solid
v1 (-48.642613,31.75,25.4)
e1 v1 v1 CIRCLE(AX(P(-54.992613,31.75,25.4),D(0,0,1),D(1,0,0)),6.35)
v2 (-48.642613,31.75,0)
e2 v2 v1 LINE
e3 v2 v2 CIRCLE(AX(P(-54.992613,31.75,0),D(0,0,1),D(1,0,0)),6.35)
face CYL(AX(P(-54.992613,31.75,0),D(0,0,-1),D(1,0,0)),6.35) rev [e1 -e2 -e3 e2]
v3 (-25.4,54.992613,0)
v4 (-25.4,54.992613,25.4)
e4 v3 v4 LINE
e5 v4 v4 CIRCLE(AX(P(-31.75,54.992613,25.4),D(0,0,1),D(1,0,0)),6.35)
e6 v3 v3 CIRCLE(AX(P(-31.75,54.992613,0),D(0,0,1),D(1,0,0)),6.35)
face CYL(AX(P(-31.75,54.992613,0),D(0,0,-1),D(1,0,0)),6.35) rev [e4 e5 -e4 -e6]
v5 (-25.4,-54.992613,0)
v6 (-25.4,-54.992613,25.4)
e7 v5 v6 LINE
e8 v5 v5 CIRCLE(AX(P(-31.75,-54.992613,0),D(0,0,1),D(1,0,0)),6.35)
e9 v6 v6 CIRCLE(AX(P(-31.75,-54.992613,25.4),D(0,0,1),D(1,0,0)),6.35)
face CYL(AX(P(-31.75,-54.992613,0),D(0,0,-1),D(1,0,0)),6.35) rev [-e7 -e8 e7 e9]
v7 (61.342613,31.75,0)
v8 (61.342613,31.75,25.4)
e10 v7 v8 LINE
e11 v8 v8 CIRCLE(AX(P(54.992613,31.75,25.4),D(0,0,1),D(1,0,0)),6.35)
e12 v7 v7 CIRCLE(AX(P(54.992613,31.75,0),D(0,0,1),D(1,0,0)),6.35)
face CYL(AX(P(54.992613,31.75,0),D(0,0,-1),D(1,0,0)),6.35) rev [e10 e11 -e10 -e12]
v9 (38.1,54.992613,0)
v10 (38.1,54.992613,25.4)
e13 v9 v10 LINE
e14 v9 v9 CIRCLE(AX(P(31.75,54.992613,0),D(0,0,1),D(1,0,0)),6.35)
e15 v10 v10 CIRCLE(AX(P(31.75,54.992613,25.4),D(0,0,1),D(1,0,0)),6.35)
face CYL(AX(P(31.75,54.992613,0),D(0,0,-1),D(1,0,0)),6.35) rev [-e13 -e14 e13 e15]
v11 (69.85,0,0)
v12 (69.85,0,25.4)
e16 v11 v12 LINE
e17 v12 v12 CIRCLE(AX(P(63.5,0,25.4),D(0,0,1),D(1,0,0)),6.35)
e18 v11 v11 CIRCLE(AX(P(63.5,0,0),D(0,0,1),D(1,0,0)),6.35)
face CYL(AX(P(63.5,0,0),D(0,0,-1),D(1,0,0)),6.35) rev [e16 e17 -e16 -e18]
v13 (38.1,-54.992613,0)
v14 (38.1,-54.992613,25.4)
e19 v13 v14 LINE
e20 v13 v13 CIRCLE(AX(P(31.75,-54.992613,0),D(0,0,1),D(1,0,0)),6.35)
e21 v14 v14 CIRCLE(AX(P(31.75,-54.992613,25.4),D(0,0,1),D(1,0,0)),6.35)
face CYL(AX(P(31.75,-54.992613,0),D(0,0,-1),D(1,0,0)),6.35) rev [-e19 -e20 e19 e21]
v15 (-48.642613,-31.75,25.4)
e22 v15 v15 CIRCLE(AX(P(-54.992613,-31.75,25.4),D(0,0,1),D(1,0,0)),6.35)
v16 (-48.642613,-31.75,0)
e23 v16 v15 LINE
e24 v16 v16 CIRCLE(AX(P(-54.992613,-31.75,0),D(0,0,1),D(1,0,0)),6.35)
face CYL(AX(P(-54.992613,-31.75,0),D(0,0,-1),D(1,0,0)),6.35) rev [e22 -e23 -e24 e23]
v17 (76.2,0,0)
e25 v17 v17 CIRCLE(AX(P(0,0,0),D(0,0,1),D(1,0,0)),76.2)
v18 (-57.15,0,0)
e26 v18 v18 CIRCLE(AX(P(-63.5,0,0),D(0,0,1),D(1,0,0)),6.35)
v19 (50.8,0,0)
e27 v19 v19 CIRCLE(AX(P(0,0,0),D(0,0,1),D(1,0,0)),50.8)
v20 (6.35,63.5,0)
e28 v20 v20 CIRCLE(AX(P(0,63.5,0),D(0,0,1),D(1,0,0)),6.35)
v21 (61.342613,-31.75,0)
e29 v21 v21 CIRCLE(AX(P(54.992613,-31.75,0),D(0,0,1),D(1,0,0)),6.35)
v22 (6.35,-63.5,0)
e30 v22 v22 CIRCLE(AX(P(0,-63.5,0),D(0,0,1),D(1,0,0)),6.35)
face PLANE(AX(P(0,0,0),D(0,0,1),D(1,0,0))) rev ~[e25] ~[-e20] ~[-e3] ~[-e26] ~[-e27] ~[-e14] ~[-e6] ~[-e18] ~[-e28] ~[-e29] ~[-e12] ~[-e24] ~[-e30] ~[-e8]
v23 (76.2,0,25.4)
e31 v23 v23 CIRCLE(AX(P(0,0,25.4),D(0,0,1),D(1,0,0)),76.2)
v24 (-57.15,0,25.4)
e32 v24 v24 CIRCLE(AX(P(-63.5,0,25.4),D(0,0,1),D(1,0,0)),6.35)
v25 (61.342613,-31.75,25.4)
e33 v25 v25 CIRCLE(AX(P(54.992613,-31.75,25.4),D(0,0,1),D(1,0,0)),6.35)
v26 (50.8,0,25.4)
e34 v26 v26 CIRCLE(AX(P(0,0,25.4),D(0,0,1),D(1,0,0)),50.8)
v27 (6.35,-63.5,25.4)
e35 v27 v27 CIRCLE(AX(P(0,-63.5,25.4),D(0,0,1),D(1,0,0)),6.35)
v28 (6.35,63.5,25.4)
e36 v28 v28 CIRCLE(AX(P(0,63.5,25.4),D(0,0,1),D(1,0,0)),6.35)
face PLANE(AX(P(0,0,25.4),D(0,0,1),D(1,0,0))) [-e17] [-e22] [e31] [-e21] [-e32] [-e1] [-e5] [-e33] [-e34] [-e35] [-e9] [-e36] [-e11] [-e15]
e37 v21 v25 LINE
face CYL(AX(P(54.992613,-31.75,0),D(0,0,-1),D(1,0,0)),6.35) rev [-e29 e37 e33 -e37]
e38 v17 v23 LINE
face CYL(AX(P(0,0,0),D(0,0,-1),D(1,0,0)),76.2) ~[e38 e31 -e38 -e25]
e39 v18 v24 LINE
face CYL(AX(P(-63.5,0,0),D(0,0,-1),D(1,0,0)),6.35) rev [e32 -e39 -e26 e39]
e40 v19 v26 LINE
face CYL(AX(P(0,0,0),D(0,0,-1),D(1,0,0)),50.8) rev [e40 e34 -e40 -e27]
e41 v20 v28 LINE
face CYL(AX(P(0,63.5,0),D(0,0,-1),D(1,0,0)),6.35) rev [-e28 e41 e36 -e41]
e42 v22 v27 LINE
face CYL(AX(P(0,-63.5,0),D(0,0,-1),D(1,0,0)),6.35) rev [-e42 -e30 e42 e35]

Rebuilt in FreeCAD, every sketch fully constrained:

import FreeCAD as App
import Part
import Sketcher
from FreeCAD import Vector
Q = App.Units.Quantity

doc = App.newDocument("Part")
body = doc.addObject("PartDesign::Body", "Body")

# Sketch on XY plane
sketch1 = body.newObject("Sketcher::SketchObject", "Sketch")
sketch1.AttachmentSupport = (doc.getObject("XY_Plane"), [""])
sketch1.MapMode = "FlatFace"
sketch1.addGeometry([
    Part.Circle(Vector(0, 0, 0), Vector(0, 0, 1), 76.2),  # 0
    Part.Circle(Vector(-31.75, -54.992613, 0), Vector(0, 0, 1), 6.35),  # 1
    Part.Circle(Vector(-54.992613, -31.75, 0), Vector(0, 0, 1), 6.35),  # 2
    Part.Circle(Vector(0, -63.5, 0), Vector(0, 0, 1), 6.35),  # 3
    Part.Circle(Vector(31.75, -54.992613, 0), Vector(0, 0, 1), 6.35),  # 4
    Part.Circle(Vector(54.992613, -31.75, 0), Vector(0, 0, 1), 6.35),  # 5
    Part.Circle(Vector(-63.5, 0, 0), Vector(0, 0, 1), 6.35),  # 6
    Part.Circle(Vector(-54.992613, 31.75, 0), Vector(0, 0, 1), 6.35),  # 7
    Part.Circle(Vector(-31.75, 54.992613, 0), Vector(0, 0, 1), 6.35),  # 8
    Part.Circle(Vector(0, 0, 0), Vector(0, 0, 1), 50.8),  # 9
    Part.Circle(Vector(63.5, 0, 0), Vector(0, 0, 1), 6.35),  # 10
    Part.Circle(Vector(54.992613, 31.75, 0), Vector(0, 0, 1), 6.35),  # 11
    Part.Circle(Vector(0, 63.5, 0), Vector(0, 0, 1), 6.35),  # 12
    Part.Circle(Vector(31.75, 54.992613, 0), Vector(0, 0, 1), 6.35),  # 13
], False)
sketch1.addConstraint([
    Sketcher.Constraint("Coincident", 0, 3, -1, 1),
    Sketcher.Constraint("Coincident", 9, 3, -1, 1),
    Sketcher.Constraint("Equal", 1, 2),
    Sketcher.Constraint("Equal", 2, 3),
    Sketcher.Constraint("Equal", 3, 4),
    Sketcher.Constraint("Equal", 4, 5),
    Sketcher.Constraint("Equal", 5, 6),
    Sketcher.Constraint("Equal", 6, 7),
    Sketcher.Constraint("Equal", 7, 8),
    Sketcher.Constraint("Equal", 8, 10),
    Sketcher.Constraint("Equal", 10, 11),
    Sketcher.Constraint("Equal", 11, 12),
    Sketcher.Constraint("Equal", 12, 13),
    Sketcher.Constraint("Symmetric", 5, 3, 7, 3, -1, 1),
    Sketcher.Constraint("Symmetric", 4, 3, 8, 3, -1, 1),
    Sketcher.Constraint("Symmetric", 6, 3, 10, 3, -1, 1),
    Sketcher.Constraint("Symmetric", 2, 3, 11, 3, -1, 1),
    Sketcher.Constraint("Symmetric", 3, 3, 12, 3, -1, 1),
    Sketcher.Constraint("Symmetric", 1, 3, 13, 3, -1, 1),
    Sketcher.Constraint("Symmetric", 1, 3, 4, 3, -2),
    Sketcher.Constraint("Symmetric", 2, 3, 5, 3, -2),
    Sketcher.Constraint("PointOnObject", 3, 3, -2),
    Sketcher.Constraint("PointOnObject", 6, 3, -1),
    Sketcher.Constraint("Diameter", 0, Q("6 in")),
    Sketcher.Constraint("Diameter", 9, Q("4 in")),
    Sketcher.Constraint("Diameter", 1, Q("0.5 in")),
    Sketcher.Constraint("DistanceY", 3, 3, -1, 1, Q("2.5 in")),
    Sketcher.Constraint("DistanceX", 6, 3, -1, 1, Q("2.5 in")),
    Sketcher.Constraint("DistanceX", 1, 3, 4, 3, Q("2.5 in")),
    Sketcher.Constraint("DistanceY", 2, 3, 7, 3, Q("2.5 in")),
    Sketcher.Constraint("DistanceY", 1, 3, -1, 1, Q("54.992613 mm")),
    Sketcher.Constraint("DistanceX", 2, 3, -1, 1, Q("54.992613 mm")),
])
pad1 = body.newObject("PartDesign::Pad", "Pad")
pad1.Profile = sketch1
pad1.Length = Q("1 in")

doc.recompute()
